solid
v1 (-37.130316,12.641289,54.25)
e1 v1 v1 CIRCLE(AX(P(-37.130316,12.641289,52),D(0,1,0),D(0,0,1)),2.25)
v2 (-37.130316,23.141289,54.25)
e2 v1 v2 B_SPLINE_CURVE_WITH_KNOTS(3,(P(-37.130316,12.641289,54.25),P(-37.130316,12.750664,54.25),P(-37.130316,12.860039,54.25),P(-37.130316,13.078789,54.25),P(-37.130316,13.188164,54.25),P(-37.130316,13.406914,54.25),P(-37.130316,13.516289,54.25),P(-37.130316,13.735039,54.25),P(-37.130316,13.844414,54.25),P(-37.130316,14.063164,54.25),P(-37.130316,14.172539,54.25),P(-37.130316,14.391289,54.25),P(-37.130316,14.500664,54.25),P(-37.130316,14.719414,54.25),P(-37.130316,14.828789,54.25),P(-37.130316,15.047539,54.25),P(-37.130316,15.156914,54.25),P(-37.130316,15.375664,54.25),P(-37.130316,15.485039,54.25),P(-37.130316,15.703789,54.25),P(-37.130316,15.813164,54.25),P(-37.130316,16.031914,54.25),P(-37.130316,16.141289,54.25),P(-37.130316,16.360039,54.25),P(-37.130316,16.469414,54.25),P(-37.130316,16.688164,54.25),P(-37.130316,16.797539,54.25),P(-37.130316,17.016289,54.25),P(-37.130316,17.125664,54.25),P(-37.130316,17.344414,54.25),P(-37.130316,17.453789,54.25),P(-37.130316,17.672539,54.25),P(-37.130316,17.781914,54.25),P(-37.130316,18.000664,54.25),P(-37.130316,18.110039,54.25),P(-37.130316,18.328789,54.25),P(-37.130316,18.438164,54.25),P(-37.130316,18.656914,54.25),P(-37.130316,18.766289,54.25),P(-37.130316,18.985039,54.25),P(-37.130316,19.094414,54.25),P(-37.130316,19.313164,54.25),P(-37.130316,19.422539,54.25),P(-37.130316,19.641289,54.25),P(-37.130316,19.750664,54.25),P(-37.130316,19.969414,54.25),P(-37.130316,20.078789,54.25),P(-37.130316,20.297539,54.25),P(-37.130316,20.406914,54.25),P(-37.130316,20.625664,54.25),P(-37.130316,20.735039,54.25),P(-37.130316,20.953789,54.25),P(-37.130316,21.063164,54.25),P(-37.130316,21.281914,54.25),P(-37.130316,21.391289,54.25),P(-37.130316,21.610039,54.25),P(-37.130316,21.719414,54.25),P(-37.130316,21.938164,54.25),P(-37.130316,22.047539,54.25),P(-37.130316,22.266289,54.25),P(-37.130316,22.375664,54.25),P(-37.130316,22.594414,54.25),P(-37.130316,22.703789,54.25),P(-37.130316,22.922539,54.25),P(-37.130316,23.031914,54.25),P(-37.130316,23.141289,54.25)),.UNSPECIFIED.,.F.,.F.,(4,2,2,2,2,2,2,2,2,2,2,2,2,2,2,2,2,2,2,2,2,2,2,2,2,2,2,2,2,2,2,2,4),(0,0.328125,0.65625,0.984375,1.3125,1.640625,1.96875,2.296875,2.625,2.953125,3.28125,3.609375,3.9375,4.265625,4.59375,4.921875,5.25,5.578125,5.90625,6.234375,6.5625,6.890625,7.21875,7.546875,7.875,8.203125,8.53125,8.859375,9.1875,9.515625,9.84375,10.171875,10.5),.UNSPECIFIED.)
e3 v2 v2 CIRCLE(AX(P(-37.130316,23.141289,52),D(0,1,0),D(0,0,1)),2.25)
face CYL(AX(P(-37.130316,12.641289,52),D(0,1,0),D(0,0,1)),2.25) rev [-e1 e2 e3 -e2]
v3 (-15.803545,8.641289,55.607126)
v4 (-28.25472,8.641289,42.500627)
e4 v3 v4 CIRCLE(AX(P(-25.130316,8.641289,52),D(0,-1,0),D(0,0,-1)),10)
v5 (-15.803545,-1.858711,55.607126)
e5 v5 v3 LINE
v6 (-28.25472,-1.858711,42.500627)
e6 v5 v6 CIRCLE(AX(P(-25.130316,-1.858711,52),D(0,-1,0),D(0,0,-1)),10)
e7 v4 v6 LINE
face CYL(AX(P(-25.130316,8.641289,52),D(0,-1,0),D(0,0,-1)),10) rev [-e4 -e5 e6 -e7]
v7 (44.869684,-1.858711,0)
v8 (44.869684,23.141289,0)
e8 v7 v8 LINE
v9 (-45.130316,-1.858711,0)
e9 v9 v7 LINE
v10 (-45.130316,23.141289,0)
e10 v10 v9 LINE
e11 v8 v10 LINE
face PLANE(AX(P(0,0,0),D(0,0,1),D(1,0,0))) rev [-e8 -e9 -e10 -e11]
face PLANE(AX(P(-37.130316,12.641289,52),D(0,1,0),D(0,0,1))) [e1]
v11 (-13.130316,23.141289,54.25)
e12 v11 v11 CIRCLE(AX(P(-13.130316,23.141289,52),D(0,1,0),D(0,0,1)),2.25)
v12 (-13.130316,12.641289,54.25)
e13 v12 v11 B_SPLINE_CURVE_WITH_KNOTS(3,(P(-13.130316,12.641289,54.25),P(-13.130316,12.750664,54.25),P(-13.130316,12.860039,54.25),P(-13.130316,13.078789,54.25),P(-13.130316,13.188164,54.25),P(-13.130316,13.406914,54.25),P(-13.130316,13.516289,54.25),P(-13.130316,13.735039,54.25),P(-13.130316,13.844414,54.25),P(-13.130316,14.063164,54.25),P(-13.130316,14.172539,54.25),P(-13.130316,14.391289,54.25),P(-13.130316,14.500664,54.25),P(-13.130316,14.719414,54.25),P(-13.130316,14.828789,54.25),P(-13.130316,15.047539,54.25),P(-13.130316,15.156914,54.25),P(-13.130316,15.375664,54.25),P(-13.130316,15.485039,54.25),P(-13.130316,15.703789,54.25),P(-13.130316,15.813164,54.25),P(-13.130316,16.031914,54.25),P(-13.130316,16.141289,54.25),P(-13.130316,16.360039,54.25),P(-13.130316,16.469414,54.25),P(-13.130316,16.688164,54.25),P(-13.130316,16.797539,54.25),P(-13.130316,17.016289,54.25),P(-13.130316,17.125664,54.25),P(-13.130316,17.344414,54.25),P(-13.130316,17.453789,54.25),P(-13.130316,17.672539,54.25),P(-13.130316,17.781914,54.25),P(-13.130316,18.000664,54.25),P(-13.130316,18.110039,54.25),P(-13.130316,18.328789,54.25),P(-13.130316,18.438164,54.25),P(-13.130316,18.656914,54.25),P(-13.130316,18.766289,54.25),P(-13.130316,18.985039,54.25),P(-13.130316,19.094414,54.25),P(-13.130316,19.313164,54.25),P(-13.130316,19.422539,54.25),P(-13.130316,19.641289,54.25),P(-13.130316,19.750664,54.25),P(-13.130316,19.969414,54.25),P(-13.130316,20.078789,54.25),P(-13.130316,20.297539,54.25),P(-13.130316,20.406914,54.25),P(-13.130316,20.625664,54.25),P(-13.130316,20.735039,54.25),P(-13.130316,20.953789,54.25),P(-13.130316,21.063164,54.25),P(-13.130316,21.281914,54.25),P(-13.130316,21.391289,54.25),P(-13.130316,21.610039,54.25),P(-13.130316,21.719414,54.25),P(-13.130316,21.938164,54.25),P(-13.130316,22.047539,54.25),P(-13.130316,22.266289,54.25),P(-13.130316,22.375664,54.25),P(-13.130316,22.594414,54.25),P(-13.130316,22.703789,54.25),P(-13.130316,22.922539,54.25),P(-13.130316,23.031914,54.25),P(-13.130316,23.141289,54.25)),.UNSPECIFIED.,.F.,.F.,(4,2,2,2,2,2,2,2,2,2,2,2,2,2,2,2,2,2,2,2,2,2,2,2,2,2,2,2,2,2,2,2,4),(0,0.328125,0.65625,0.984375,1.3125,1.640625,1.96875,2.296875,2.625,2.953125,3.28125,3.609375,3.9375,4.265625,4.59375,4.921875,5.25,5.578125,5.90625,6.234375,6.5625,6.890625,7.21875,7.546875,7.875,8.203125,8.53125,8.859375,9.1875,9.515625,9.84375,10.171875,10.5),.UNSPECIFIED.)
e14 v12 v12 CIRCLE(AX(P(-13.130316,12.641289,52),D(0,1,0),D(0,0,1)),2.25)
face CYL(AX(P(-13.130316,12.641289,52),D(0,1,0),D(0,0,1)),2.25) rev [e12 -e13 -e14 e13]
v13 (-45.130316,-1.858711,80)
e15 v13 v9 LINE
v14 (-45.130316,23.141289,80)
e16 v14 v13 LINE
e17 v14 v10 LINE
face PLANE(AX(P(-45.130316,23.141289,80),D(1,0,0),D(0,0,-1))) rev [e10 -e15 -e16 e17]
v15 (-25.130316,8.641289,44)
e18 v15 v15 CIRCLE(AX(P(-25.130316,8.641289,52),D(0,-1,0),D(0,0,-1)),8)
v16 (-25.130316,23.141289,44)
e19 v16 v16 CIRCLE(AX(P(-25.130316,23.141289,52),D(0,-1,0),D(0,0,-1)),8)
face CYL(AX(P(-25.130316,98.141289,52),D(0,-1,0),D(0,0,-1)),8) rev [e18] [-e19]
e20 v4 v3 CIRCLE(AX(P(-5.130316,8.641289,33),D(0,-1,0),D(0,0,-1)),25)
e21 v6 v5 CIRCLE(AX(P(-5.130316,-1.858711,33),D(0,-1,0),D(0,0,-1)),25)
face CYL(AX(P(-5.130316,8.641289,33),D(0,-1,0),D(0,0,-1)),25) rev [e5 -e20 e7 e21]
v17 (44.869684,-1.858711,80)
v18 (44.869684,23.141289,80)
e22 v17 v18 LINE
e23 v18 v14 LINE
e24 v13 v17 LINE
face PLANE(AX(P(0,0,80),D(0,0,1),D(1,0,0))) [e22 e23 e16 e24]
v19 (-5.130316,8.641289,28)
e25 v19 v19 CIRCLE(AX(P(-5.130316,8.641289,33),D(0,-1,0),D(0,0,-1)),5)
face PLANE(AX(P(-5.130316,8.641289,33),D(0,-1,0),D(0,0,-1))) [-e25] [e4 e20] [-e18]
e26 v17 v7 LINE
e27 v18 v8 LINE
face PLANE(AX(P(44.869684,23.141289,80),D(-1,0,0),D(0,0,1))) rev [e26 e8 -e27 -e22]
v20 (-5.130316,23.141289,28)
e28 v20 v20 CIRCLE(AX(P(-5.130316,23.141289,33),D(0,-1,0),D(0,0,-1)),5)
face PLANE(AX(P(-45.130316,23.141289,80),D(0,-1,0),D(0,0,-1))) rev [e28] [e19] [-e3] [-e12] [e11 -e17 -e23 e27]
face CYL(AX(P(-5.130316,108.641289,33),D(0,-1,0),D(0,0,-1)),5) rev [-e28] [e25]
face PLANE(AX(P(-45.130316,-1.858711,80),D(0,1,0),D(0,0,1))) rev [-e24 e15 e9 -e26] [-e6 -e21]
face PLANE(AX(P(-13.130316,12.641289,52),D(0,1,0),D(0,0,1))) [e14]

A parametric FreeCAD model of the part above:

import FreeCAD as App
import Part
import Sketcher

V = App.Vector

doc = App.newDocument("Part")
body = doc.addObject("PartDesign::Body", "Body")

# Sketch on XY plane
sketch1 = body.newObject("Sketcher::SketchObject", "Sketch")
sketch1.AttachmentSupport = (doc.getObject("XY_Plane"), [""])
sketch1.MapMode = "FlatFace"
sketch1.addGeometry([
    Part.LineSegment(V(-45, 23, 0), V(-45, -2, 0)),
    Part.LineSegment(V(-45, -2, 0), V(45, -2, 0)),
    Part.LineSegment(V(45, -2, 0), V(45, 23, 0)),
    Part.LineSegment(V(45, 23, 0), V(-45, 23, 0)),
], False)
sketch1.addConstraint([
    Sketcher.Constraint("Coincident", 0, 2, 1, 1),
    Sketcher.Constraint("Coincident", 1, 2, 2, 1),
    Sketcher.Constraint("Coincident", 2, 2, 3, 1),
    Sketcher.Constraint("Coincident", 3, 2, 0, 1),
    Sketcher.Constraint("Vertical", 0),
    Sketcher.Constraint("Horizontal", 1),
    Sketcher.Constraint("Vertical", 2),
    Sketcher.Constraint("Horizontal", 3),
    Sketcher.Constraint("DistanceX", 1, 1, 1, 2, 90.0),
    Sketcher.Constraint("DistanceY", 0, 2, 0, 1, 25.0),
    Sketcher.Constraint("DistanceY", 0, 2, -1, 1, 1.858711),
    Sketcher.Constraint("DistanceX", 0, 2, -1, 1, 45.130316),
])
pad1 = body.newObject("PartDesign::Pad", "Pad")
pad1.Profile = sketch1
pad1.Length = 80

# Sketch on XZ plane
sketch2 = body.newObject("Sketcher::SketchObject", "Sketch001")
sketch2.AttachmentSupport = (doc.getObject("XZ_Plane"), [""])
sketch2.MapMode = "FlatFace"
sketch2.AttachmentOffset = App.Placement(V(0, 0, 1.858711), App.Rotation())
sketch2.addGeometry(Part.Circle(V(-5, 33, 0), V(0, 0, 1), 25), False)
sketch2.addConstraint([
    Sketcher.Constraint("Diameter", 0, 50.0),
    Sketcher.Constraint("DistanceY", -1, 1, 0, 3, 33.0),
    Sketcher.Constraint("DistanceX", 0, 3, -1, 1, 5.130316),
])
pocket1 = body.newObject("PartDesign::Pocket", "Pocket")
pocket1.Profile = sketch2
pocket1.Length = 10.5

# Sketch on XZ plane
sketch3 = body.newObject("Sketcher::SketchObject", "Sketch002")
sketch3.AttachmentSupport = (doc.getObject("XZ_Plane"), [""])
sketch3.MapMode = "FlatFace"
sketch3.AttachmentOffset = App.Placement(V(0, 0, -8.641289), App.Rotation())
sketch3.addGeometry(Part.Circle(V(-5, 33, 0), V(0, 0, 1), 5), False)
sketch3.addConstraint([
    Sketcher.Constraint("Diameter", 0, 10.0),
    Sketcher.Constraint("DistanceY", -1, 1, 0, 3, 33.0),
    Sketcher.Constraint("DistanceX", 0, 3, -1, 1, 5.130316),
])
pocket2 = body.newObject("PartDesign::Pocket", "Pocket001")
pocket2.Profile = sketch3
pocket2.Length = 100

# Sketch on XZ plane
sketch4 = body.newObject("Sketcher::SketchObject", "Sketch003")
sketch4.AttachmentSupport = (doc.getObject("XZ_Plane"), [""])
sketch4.MapMode = "FlatFace"
sketch4.AttachmentOffset = App.Placement(V(0, 0, 1.858711), App.Rotation())
sketch4.addGeometry(Part.Circle(V(-25, 52, 0), V(0, 0, 1), 8), False)
sketch4.addConstraint([
    Sketcher.Constraint("Diameter", 0, 16.0),
    Sketcher.Constraint("DistanceY", -1, 1, 0, 3, 52.0),
    Sketcher.Constraint("DistanceX", 0, 3, -1, 1, 25.130316),
])
pocket3 = body.newObject("PartDesign::Pocket", "Pocket002")
pocket3.Profile = sketch4
pocket3.Length = 100

# Sketch on XZ plane
sketch5 = body.newObject("Sketcher::SketchObject", "Sketch004")
sketch5.AttachmentSupport = (doc.getObject("XZ_Plane"), [""])
sketch5.MapMode = "FlatFace"
sketch5.AttachmentOffset = App.Placement(V(0, 0, 1.858711), App.Rotation())
sketch5.addGeometry(Part.Circle(V(-25, 52, 0), V(0, 0, 1), 10), False)
sketch5.addConstraint([
    Sketcher.Constraint("Diameter", 0, 20.0),
    Sketcher.Constraint("DistanceY", -1, 1, 0, 3, 52.0),
    Sketcher.Constraint("DistanceX", 0, 3, -1, 1, 25.130316),
])
pocket4 = body.newObject("PartDesign::Pocket", "Pocket003")
pocket4.Profile = sketch5
pocket4.Length = 10.5

# Sketch on XZ plane
sketch6 = body.newObject("Sketcher::SketchObject", "Sketch005")
sketch6.AttachmentSupport = (doc.getObject("XZ_Plane"), [""])
sketch6.MapMode = "FlatFace"
sketch6.AttachmentOffset = App.Placement(V(0, 0, -23.141289), App.Rotation())
sketch6.addGeometry(Part.Circle(V(-37.1, 52, 0), V(0, 0, 1), 2.2), False)
sketch6.addConstraint([
    Sketcher.Constraint("Diameter", 0, 4.5),
    Sketcher.Constraint("DistanceY", -1, 1, 0, 3, 52.0),
    Sketcher.Constraint("DistanceX", 0, 3, -1, 1, 37.130316),
])
pocket5 = body.newObject("PartDesign::Pocket", "Pocket004")
pocket5.Profile = sketch6
pocket5.Length = 10.5
pocket5.Reversed = True
doc.recompute()

linearpattern = body.newObject("PartDesign::LinearPattern", "LinearPattern")
linearpattern.Originals = [pocket5]
linearpattern.Direction = (doc.getObject("X_Axis"), [""])
linearpattern.Mode = "offset"
linearpattern.Offset = 24
linearpattern.Occurrences = 2
body.Tip = linearpattern

doc.recompute()
